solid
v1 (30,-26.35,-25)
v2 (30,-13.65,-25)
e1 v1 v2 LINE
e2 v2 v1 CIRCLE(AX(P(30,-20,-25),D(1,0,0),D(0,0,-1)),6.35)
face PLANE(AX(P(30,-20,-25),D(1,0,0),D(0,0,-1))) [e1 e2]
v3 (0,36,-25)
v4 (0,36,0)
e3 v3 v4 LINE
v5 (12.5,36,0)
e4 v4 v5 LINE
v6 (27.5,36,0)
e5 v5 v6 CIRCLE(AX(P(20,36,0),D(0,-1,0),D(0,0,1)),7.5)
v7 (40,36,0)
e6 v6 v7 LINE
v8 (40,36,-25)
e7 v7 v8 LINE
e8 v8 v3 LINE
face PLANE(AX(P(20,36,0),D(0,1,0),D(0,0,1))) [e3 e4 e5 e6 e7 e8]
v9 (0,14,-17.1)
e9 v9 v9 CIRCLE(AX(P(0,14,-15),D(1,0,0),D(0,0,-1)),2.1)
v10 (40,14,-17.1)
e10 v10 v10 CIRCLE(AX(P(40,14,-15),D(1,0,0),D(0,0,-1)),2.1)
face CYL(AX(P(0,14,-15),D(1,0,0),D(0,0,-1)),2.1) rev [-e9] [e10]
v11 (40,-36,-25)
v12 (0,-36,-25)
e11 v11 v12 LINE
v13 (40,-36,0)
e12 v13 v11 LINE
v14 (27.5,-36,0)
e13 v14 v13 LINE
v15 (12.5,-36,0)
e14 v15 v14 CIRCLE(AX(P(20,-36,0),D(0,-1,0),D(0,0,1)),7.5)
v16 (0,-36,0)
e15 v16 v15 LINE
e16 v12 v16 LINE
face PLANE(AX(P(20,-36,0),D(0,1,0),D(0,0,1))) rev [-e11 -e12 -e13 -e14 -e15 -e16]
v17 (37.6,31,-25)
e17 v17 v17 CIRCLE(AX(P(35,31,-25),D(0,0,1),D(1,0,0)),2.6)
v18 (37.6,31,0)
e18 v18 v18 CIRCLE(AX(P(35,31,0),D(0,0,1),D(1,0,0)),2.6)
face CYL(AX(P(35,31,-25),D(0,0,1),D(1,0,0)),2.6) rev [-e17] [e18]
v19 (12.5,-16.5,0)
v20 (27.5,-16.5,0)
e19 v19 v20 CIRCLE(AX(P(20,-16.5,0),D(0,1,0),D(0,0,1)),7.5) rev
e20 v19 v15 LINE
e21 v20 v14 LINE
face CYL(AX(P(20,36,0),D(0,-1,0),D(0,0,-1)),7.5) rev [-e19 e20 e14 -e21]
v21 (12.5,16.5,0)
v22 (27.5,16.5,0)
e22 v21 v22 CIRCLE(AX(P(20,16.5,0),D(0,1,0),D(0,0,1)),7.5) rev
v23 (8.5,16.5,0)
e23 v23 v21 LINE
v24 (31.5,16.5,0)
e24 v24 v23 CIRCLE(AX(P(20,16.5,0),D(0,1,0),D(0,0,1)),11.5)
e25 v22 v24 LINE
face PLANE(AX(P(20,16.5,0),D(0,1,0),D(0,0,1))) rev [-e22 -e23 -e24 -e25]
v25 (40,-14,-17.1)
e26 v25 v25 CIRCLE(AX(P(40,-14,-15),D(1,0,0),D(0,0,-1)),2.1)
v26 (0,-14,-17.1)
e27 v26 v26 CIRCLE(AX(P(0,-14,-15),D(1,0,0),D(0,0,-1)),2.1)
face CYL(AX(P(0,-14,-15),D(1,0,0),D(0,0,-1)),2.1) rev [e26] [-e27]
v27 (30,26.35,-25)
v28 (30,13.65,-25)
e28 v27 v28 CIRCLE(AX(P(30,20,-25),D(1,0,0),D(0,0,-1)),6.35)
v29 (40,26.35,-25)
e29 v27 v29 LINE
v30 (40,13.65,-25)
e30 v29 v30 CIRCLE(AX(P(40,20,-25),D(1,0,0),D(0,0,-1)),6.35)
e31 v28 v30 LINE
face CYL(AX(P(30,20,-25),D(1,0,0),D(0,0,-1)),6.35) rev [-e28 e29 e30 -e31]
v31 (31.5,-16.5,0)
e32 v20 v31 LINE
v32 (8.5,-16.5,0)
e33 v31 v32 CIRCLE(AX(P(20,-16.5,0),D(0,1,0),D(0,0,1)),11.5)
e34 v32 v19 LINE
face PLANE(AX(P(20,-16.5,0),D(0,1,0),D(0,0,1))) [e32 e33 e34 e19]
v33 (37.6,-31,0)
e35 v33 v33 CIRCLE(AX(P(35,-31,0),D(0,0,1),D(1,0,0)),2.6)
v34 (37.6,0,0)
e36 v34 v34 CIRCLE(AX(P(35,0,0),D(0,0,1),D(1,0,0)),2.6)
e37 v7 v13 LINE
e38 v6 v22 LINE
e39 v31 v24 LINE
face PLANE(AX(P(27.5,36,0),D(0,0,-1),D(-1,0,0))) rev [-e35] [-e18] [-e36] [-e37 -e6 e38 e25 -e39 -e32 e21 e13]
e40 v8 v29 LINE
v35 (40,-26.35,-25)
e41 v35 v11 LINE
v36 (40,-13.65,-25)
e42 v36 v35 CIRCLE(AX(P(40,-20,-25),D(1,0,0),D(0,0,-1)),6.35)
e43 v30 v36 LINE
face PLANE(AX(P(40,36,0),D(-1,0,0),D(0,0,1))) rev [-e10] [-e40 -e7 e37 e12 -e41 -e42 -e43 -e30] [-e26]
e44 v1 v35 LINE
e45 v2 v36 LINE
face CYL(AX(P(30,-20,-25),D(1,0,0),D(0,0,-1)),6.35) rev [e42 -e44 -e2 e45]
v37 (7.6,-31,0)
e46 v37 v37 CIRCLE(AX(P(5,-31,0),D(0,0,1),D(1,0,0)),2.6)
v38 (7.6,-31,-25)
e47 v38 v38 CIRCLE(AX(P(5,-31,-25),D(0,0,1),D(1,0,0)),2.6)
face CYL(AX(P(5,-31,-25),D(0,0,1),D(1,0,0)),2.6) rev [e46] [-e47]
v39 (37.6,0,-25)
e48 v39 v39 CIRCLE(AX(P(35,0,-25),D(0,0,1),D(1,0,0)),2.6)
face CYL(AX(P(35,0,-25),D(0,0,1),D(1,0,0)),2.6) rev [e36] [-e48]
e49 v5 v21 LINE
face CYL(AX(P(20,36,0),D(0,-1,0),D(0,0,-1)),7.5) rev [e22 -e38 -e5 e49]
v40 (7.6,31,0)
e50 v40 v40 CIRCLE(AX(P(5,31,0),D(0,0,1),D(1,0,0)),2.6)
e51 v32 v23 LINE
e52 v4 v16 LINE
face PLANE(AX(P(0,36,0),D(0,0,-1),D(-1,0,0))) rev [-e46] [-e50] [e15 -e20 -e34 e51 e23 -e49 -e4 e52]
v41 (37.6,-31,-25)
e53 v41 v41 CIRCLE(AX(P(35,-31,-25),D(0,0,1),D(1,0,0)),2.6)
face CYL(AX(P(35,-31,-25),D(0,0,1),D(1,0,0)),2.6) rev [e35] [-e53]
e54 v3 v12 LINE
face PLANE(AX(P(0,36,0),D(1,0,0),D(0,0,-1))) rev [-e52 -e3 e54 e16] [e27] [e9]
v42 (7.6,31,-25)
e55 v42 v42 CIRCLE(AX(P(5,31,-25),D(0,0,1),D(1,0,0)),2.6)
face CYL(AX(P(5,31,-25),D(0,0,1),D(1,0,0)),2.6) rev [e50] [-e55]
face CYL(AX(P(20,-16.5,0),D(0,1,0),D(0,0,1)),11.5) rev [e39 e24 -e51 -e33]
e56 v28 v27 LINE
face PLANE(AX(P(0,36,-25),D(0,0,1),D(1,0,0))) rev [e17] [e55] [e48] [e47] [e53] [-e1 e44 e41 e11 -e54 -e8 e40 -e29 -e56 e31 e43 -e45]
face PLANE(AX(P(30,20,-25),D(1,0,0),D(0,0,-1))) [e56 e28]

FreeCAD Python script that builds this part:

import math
import FreeCAD as App
import Part
import Sketcher

V = App.Vector

doc = App.newDocument("Part")
body = doc.addObject("PartDesign::Body", "Body")

# Sketch on XZ plane
sketch1 = body.newObject("Sketcher::SketchObject", "Sketch")
sketch1.AttachmentSupport = (doc.getObject("XZ_Plane"), [""])
sketch1.MapMode = "FlatFace"
sketch1.addGeometry([
    Part.LineSegment(V(27.5, 0, 0), V(40, 0, 0)),  # 0
    Part.LineSegment(V(40, 0, 0), V(40, -25, 0)),  # 1
    Part.LineSegment(V(40, -25, 0), V(0, -25, 0)),  # 2
    Part.LineSegment(V(0, -25, 0), V(0, 0, 0)),  # 3
    Part.LineSegment(V(0, 0, 0), V(12.5, 0, 0)),  # 4
    Part.ArcOfCircle(Part.Circle(V(20, 0, 0), V(0, 0, 1), 7.5), math.radians(180), math.radians(360)),  # 5
], False)
sketch1.addConstraint([
    Sketcher.Constraint("Coincident", 0, 2, 1, 1),
    Sketcher.Constraint("Coincident", 1, 2, 2, 1),
    Sketcher.Constraint("Coincident", 2, 2, 3, 1),
    Sketcher.Constraint("Coincident", 3, 2, 4, 1),
    Sketcher.Constraint("Coincident", 4, 2, 5, 1),
    Sketcher.Constraint("Coincident", 5, 2, 0, 1),
    Sketcher.Constraint("Horizontal", 0),
    Sketcher.Constraint("Vertical", 1),
    Sketcher.Constraint("Horizontal", 2),
    Sketcher.Constraint("Vertical", 3),
    Sketcher.Constraint("Horizontal", 4),
    Sketcher.Constraint("Coincident", 3, 2, -1, 1),
    Sketcher.Constraint("PointOnObject", 5, 3, -1),
    Sketcher.Constraint("PointOnObject", 0, 2, -1),
    Sketcher.Constraint("Equal", 0, 4),
    Sketcher.Constraint("Radius", 5, 7.5),
    Sketcher.Constraint("DistanceX", 2, 2, 2, 1, 40.0),
    Sketcher.Constraint("DistanceY", 1, 2, 1, 1, 25.0),
])
pad1 = body.newObject("PartDesign::Pad", "Pad")
pad1.Profile = sketch1
pad1.Length = 72
pad1.Midplane = True

# Sketch on XZ plane
sketch2 = body.newObject("Sketcher::SketchObject", "Sketch001")
sketch2.AttachmentSupport = (doc.getObject("XZ_Plane"), [""])
sketch2.MapMode = "FlatFace"
sketch2.addGeometry([
    Part.LineSegment(V(8.5, 0, 0), V(31.5, 0, 0)),
    Part.ArcOfCircle(Part.Circle(V(20, 0, 0), V(0, 0, 1), 11.5), math.radians(180), math.radians(360)),
], False)
sketch2.addConstraint([
    Sketcher.Constraint("Coincident", 0, 1, 1, 1),
    Sketcher.Constraint("Coincident", 1, 2, 0, 2),
    Sketcher.Constraint("Horizontal", 0),
    Sketcher.Constraint("PointOnObject", 1, 3, -1),
    Sketcher.Constraint("PointOnObject", 0, 1, -1),
    Sketcher.Constraint("Radius", 1, 11.5),
    Sketcher.Constraint("DistanceX", -1, 1, 1, 3, 20.0),
])
pocket1 = body.newObject("PartDesign::Pocket", "Pocket")
pocket1.Profile = sketch2
pocket1.Length = 33
pocket1.Midplane = True

# Sketch on YZ plane
sketch3 = body.newObject("Sketcher::SketchObject", "Sketch002")
sketch3.AttachmentSupport = (doc.getObject("YZ_Plane"), [""])
sketch3.MapMode = "FlatFace"
sketch3.AttachmentOffset = App.Placement(V(0, 0, 40), App.Rotation())
sketch3.addGeometry([
    Part.LineSegment(V(13.65, -25, 0), V(26.35, -25, 0)),
    Part.ArcOfCircle(Part.Circle(V(20, -25, 0), V(0, 0, 1), 6.35), math.radians(0), math.radians(180)),
    Part.LineSegment(V(-26.35, -25, 0), V(-13.65, -25, 0)),
    Part.ArcOfCircle(Part.Circle(V(-20, -25, 0), V(0, 0, 1), 6.35), math.radians(0), math.radians(180)),
], False)
sketch3.addConstraint([
    Sketcher.Constraint("Coincident", 0, 1, 1, 2),
    Sketcher.Constraint("Coincident", 1, 1, 0, 2),
    Sketcher.Constraint("Coincident", 2, 1, 3, 2),
    Sketcher.Constraint("Coincident", 3, 1, 2, 2),
    Sketcher.Constraint("Horizontal", 0),
    Sketcher.Constraint("Horizontal", 2),
    Sketcher.Constraint("Equal", 1, 3),
    Sketcher.Constraint("Symmetric", 1, 3, 3, 3, -2),
    Sketcher.Constraint("Horizontal", 3, 3, 0, 1),
    Sketcher.Constraint("Horizontal", 1, 1, 2, 1),
    Sketcher.Constraint("Radius", 1, 6.35),
    Sketcher.Constraint("DistanceX", -1, 1, 1, 3, 20.0),
    Sketcher.Constraint("DistanceY", 1, 3, -1, 1, 25.0),
])
pocket2 = body.newObject("PartDesign::Pocket", "Pocket001")
pocket2.Profile = sketch3
pocket2.Length = 10

# Sketch on YZ plane
sketch4 = body.newObject("Sketcher::SketchObject", "Sketch003")
sketch4.AttachmentSupport = (doc.getObject("YZ_Plane"), [""])
sketch4.MapMode = "FlatFace"
sketch4.AttachmentOffset = App.Placement(V(0, 0, 40), App.Rotation())
sketch4.addGeometry([
    Part.Circle(V(14, -15, 0), V(0, 0, 1), 2.1),
    Part.Circle(V(-14, -15, 0), V(0, 0, 1), 2.1),
], False)
sketch4.addConstraint([
    Sketcher.Constraint("Equal", 0, 1),
    Sketcher.Constraint("Symmetric", 0, 3, 1, 3, -2),
    Sketcher.Constraint("Diameter", 0, 4.2),
    Sketcher.Constraint("DistanceX", -1, 1, 0, 3, 14.0),
    Sketcher.Constraint("DistanceY", 0, 3, -1, 1, 15.0),
])
pocket3 = body.newObject("PartDesign::Pocket", "Pocket002")
pocket3.Profile = sketch4
pocket3.Type = "ThroughAll"

# Sketch on XY plane
sketch5 = body.newObject("Sketcher::SketchObject", "Sketch004")
sketch5.AttachmentSupport = (doc.getObject("XY_Plane"), [""])
sketch5.MapMode = "FlatFace"
sketch5.addGeometry([
    Part.Circle(V(5, 31, 0), V(0, 0, 1), 2.6),  # 0
    Part.Circle(V(35, 31, 0), V(0, 0, 1), 2.6),  # 1
    Part.Circle(V(35, -31, 0), V(0, 0, 1), 2.6),  # 2
    Part.Circle(V(5, -31, 0), V(0, 0, 1), 2.6),  # 3
    Part.Circle(V(35, 0, 0), V(0, 0, 1), 2.6),  # 4
], False)
sketch5.addConstraint([
    Sketcher.Constraint("Equal", 0, 1),
    Sketcher.Constraint("Equal", 1, 2),
    Sketcher.Constraint("Equal", 2, 3),
    Sketcher.Constraint("Equal", 3, 4),
    Sketcher.Constraint("Symmetric", 1, 3, 2, 3, -1),
    Sketcher.Constraint("Symmetric", 0, 3, 3, 3, -1),
    Sketcher.Constraint("PointOnObject", 4, 3, -1),
    Sketcher.Constraint("Horizontal", 0, 3, 1, 3),
    Sketcher.Constraint("Vertical", 2, 3, 4, 3),
    Sketcher.Constraint("Diameter", 0, 5.2),
    Sketcher.Constraint("DistanceX", -1, 1, 0, 3, 5.0),
    Sketcher.Constraint("DistanceY", -1, 1, 0, 3, 31.0),
    Sketcher.Constraint("DistanceX", -1, 1, 1, 3, 35.0),
])
pocket4 = body.newObject("PartDesign::Pocket", "Pocket003")
pocket4.Profile = sketch5
pocket4.Type = "ThroughAll"

doc.recompute()
